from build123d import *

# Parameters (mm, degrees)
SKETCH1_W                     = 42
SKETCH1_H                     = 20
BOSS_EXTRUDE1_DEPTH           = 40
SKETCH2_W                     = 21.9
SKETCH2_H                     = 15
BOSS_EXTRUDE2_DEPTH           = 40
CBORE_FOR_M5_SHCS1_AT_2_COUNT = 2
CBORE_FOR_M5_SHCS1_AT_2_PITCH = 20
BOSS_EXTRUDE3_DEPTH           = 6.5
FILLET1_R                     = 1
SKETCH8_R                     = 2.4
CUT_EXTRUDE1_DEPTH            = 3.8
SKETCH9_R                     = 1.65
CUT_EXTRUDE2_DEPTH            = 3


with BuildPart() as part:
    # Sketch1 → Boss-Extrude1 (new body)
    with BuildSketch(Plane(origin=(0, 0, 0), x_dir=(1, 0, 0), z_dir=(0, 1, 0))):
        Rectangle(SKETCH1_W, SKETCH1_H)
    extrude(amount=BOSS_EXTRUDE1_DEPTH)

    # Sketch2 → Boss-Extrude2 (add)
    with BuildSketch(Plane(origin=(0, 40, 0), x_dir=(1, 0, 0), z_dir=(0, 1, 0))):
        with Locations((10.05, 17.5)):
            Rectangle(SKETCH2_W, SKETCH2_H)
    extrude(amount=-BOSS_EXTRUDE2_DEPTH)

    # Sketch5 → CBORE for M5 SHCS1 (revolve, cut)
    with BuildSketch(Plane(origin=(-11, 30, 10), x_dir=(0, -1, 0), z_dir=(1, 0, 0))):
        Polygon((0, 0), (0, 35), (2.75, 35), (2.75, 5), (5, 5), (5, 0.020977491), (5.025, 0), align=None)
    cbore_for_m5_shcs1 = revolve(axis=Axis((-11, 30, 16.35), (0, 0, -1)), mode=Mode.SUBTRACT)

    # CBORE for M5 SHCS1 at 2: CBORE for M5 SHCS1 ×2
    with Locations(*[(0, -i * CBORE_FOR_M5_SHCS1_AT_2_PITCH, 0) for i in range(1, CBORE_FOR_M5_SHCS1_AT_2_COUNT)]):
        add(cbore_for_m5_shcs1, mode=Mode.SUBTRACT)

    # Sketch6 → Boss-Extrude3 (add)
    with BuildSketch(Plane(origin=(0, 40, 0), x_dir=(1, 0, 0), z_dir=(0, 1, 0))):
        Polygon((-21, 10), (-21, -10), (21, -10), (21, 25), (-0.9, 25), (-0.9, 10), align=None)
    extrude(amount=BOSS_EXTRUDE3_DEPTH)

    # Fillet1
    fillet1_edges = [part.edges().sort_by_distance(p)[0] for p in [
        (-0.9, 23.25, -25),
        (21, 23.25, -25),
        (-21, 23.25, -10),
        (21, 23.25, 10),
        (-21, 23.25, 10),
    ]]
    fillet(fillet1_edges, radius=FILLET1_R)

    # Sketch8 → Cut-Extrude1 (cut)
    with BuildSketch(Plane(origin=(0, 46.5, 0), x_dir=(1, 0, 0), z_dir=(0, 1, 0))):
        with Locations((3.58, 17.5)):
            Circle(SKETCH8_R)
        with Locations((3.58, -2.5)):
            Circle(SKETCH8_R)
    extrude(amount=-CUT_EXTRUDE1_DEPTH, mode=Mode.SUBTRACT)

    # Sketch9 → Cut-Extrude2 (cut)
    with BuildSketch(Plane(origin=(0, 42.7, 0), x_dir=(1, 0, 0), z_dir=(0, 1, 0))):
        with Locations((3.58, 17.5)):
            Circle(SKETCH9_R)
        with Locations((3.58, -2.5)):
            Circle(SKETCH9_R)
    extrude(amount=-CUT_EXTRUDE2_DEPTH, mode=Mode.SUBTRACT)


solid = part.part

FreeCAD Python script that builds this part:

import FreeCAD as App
import Part
import Sketcher

V = App.Vector
Q = App.Units.Quantity


def edges_at(feature, points):
    """Names of the edges that pass closest to the given points."""
    edges = feature.Shape.Edges
    near = lambda p: min(range(len(edges)), key=lambda i: edges[i].distToShape(Part.Vertex(*p))[0])
    return sorted({f"Edge{near(p) + 1}" for p in points})


def add_polygon(sketch, points):
    """Adds a closed chain of lines whose ends are joined by coincident constraints."""
    first, n = sketch.GeometryCount, len(points)
    for a, b in zip(points, points[1:] + points[:1]):
        sketch.addGeometry(Part.LineSegment(App.Vector(*a, 0), App.Vector(*b, 0)), False)
    for i in range(n):
        sketch.addConstraint(Sketcher.Constraint("Coincident", first + i, 2, first + (i + 1) % n, 1))

doc = App.newDocument("Part")
params = doc.addObject("Spreadsheet::Sheet", "Params")
for row, (alias, value) in enumerate([
    ("sketch1_width", "42 mm"),
    ("sketch1_height", "20 mm"),
    ("pad1_length", "40 mm"),
    ("sketch2_height", "15 mm"),
    ("sketch2_width", "21.9 mm"),
    ("pad2_length", "40 mm"),
    ("sketch3_height", "35 mm"),
    ("sketch3_height2", "30 mm"),
    ("sketch3_width", "2.25 mm"),
    ("groove_angle", "360 deg"),
    ("linearpattern_pitch", "20 mm"),
    ("sketch4_width", "42 mm"),
    ("sketch4_height", "20 mm"),
    ("sketch4_height2", "35 mm"),
    ("sketch4_width2", "21.9 mm"),
    ("pad3_length", "6.5 mm"),
    ("fillet_radius", "1 mm"),
    ("sketch5_diameter", "4.8 mm"),
    ("pocket1_length", "3.8 mm"),
    ("sketch6_diameter", "3.3 mm"),
    ("pocket2_length", "3 mm"),
], start=1):
    params.set(f"A{row}", alias)
    params.set(f"B{row}", "=" + value)
    params.setAlias(f"B{row}", alias)

body = doc.addObject("PartDesign::Body", "Body")

# Sketch on XZ plane
sketch1 = body.newObject("Sketcher::SketchObject", "Sketch")
sketch1.AttachmentSupport = (doc.getObject("XZ_Plane"), [""])
sketch1.MapMode = "FlatFace"
add_polygon(sketch1, [(-21, -10), (-21, 10), (21, 10), (21, -10)])  # lines 0-3
sketch1.addConstraint([
    Sketcher.Constraint("Vertical", 0),
    Sketcher.Constraint("Horizontal", 1),
    Sketcher.Constraint("Vertical", 2),
    Sketcher.Constraint("Horizontal", 3),
    Sketcher.Constraint("Symmetric", 0, 2, 2, 2, -1, 1),
    Sketcher.Constraint("DistanceX", 1, 1, 1, 2, Q("42 mm")),
    Sketcher.Constraint("DistanceY", 0, 1, 0, 2, Q("20 mm")),
])
sketch1.setExpression("Constraints[9]", "Params.sketch1_width")
sketch1.setExpression("Constraints[10]", "Params.sketch1_height")
pad1 = body.newObject("PartDesign::Pad", "Pad")
pad1.Profile = sketch1
pad1.setExpression("Length", "Params.pad1_length")
pad1.Reversed = True

# Sketch on XZ plane
sketch2 = body.newObject("Sketcher::SketchObject", "Sketch001")
sketch2.AttachmentSupport = (doc.getObject("XZ_Plane"), [""])
sketch2.MapMode = "FlatFace"
sketch2.AttachmentOffset = App.Placement(V(0, 0, -40), App.Rotation())
add_polygon(sketch2, [(-0.9, -25), (-0.9, -10), (21, -10), (21, -25)])  # lines 0-3
sketch2.addConstraint([
    Sketcher.Constraint("Vertical", 0),
    Sketcher.Constraint("Horizontal", 1),
    Sketcher.Constraint("Vertical", 2),
    Sketcher.Constraint("Horizontal", 3),
    Sketcher.Constraint("DistanceY", 0, 1, 0, 2, Q("15 mm")),
    Sketcher.Constraint("DistanceX", 1, 1, 1, 2, Q("21.9 mm")),
    Sketcher.Constraint("DistanceY", 0, 2, -1, 1, Q("10 mm")),
    Sketcher.Constraint("DistanceX", -1, 1, 1, 2, Q("21 mm")),
])
sketch2.setExpression("Constraints[8]", "Params.sketch2_height")
sketch2.setExpression("Constraints[9]", "Params.sketch2_width")
pad2 = body.newObject("PartDesign::Pad", "Pad001")
pad2.Profile = sketch2
pad2.setExpression("Length", "Params.pad2_length")

# Sketch on YZ plane
sketch3 = body.newObject("Sketcher::SketchObject", "Sketch002")
sketch3.AttachmentSupport = (doc.getObject("YZ_Plane"), [""])
sketch3.MapMode = "FlatFace"
sketch3.AttachmentOffset = App.Placement(V(0, 0, -11), App.Rotation())
add_polygon(sketch3, [(30, -25), (30, 10), (24.975, 10), (25, 9.979023), (25, 5), (27.25, 5), (27.25, -25)])  # lines 0-6
sketch3.addGeometry(Part.LineSegment(V(30, 10, 0), V(30, -25, 0)), True)  # axis
sketch3.addConstraint([
    Sketcher.Constraint("Vertical", 0),
    Sketcher.Constraint("Horizontal", 1),
    Sketcher.Constraint("Vertical", 3),
    Sketcher.Constraint("Horizontal", 4),
    Sketcher.Constraint("Vertical", 5),
    Sketcher.Constraint("Horizontal", 6),
    Sketcher.Constraint("Vertical", 7),
    Sketcher.Constraint("Coincident", 7, 1, 0, 2),
    Sketcher.Constraint("Horizontal", 5, 2, 7, 2),
    Sketcher.Constraint("DistanceY", 0, 1, 0, 2, Q("35 mm")),
    Sketcher.Constraint("DistanceY", 5, 2, 5, 1, Q("30 mm")),
    Sketcher.Constraint("Angle", 2, Q("-40 deg")),
    Sketcher.Constraint("DistanceX", -1, 1, 0, 2, Q("30 mm")),
    Sketcher.Constraint("DistanceY", -1, 1, 0, 2, Q("10 mm")),
    Sketcher.Constraint("DistanceX", -1, 1, 2, 2, Q("25 mm")),
    Sketcher.Constraint("DistanceX", 4, 1, 4, 2, Q("2.25 mm")),
    Sketcher.Constraint("DistanceX", 1, 2, 1, 1, Q("5.025 mm")),
])
sketch3.setExpression("Constraints[16]", "Params.sketch3_height")
sketch3.setExpression("Constraints[17]", "Params.sketch3_height2")
sketch3.setExpression("Constraints[22]", "Params.sketch3_width")
groove = body.newObject("PartDesign::Groove", "Groove")
groove.Profile = sketch3
groove.ReferenceAxis = (sketch3, ["Axis0"])
groove.setExpression("Angle", "Params.groove_angle")
doc.recompute()

linearpattern = body.newObject("PartDesign::LinearPattern", "LinearPattern")
linearpattern.Originals = [groove]
linearpattern.Direction = (doc.getObject("Y_Axis"), [""])
linearpattern.Mode = "offset"
linearpattern.setExpression("Offset", "Params.linearpattern_pitch")
linearpattern.Occurrences = 2
linearpattern.Reversed = True
body.Tip = linearpattern

# Sketch on XZ plane
sketch4 = body.newObject("Sketcher::SketchObject", "Sketch003")
sketch4.AttachmentSupport = (doc.getObject("XZ_Plane"), [""])
sketch4.MapMode = "FlatFace"
sketch4.AttachmentOffset = App.Placement(V(0, 0, -40), App.Rotation())
add_polygon(sketch4, [(-21, -10), (-21, 10), (21, 10), (21, -25), (-0.9, -25), (-0.9, -10)])  # lines 0-5
sketch4.addConstraint([
    Sketcher.Constraint("Vertical", 0),
    Sketcher.Constraint("Horizontal", 1),
    Sketcher.Constraint("Vertical", 2),
    Sketcher.Constraint("Horizontal", 3),
    Sketcher.Constraint("Vertical", 4),
    Sketcher.Constraint("Horizontal", 5),
    Sketcher.Constraint("Symmetric", 1, 2, 5, 2, -1, 1),
    Sketcher.Constraint("DistanceX", 1, 1, 1, 2, Q("42 mm")),
    Sketcher.Constraint("DistanceY", 0, 1, 0, 2, Q("20 mm")),
    Sketcher.Constraint("DistanceY", 2, 2, 2, 1, Q("35 mm")),
    Sketcher.Constraint("DistanceX", 3, 2, 3, 1, Q("21.9 mm")),
])
sketch4.setExpression("Constraints[13]", "Params.sketch4_width")
sketch4.setExpression("Constraints[14]", "Params.sketch4_height")
sketch4.setExpression("Constraints[15]", "Params.sketch4_height2")
sketch4.setExpression("Constraints[16]", "Params.sketch4_width2")
pad3 = body.newObject("PartDesign::Pad", "Pad002")
pad3.Profile = sketch4
pad3.setExpression("Length", "Params.pad3_length")
pad3.Reversed = True
doc.recompute()

fillet = body.newObject("PartDesign::Fillet", "Fillet")
fillet.Base = (pad3, edges_at(pad3, [
    (-0.9, 23.25, -25),
    (21, 23.25, -25),
    (-21, 23.25, -10),
    (21, 23.25, 10),
    (-21, 23.25, 10),
]))
fillet.setExpression("Radius", "Params.fillet_radius")

# Sketch on XZ plane
sketch5 = body.newObject("Sketcher::SketchObject", "Sketch004")
sketch5.AttachmentSupport = (doc.getObject("XZ_Plane"), [""])
sketch5.MapMode = "FlatFace"
sketch5.AttachmentOffset = App.Placement(V(0, 0, -46.5), App.Rotation())
sketch5.addGeometry([
    Part.Circle(V(3.58, -17.5, 0), V(0, 0, 1), 2.4),
    Part.Circle(V(3.58, 2.5, 0), V(0, 0, 1), 2.4),
], False)
sketch5.addConstraint([
    Sketcher.Constraint("Equal", 0, 1),
    Sketcher.Constraint("Vertical", 0, 3, 1, 3),
    Sketcher.Constraint("Diameter", 0, Q("4.8 mm")),
    Sketcher.Constraint("DistanceY", 0, 3, 1, 3, Q("20 mm")),
    Sketcher.Constraint("DistanceY", 0, 3, -1, 1, Q("17.5 mm")),
    Sketcher.Constraint("DistanceX", -1, 1, 0, 3, Q("3.58 mm")),
])
sketch5.setExpression("Constraints[2]", "Params.sketch5_diameter")
pocket1 = body.newObject("PartDesign::Pocket", "Pocket")
pocket1.Profile = sketch5
pocket1.setExpression("Length", "Params.pocket1_length")
pocket1.Reversed = True

# Sketch on XZ plane
sketch6 = body.newObject("Sketcher::SketchObject", "Sketch005")
sketch6.AttachmentSupport = (doc.getObject("XZ_Plane"), [""])
sketch6.MapMode = "FlatFace"
sketch6.AttachmentOffset = App.Placement(V(0, 0, -42.7), App.Rotation())
sketch6.addGeometry([
    Part.Circle(V(3.58, -17.5, 0), V(0, 0, 1), 1.65),
    Part.Circle(V(3.58, 2.5, 0), V(0, 0, 1), 1.65),
], False)
sketch6.addConstraint([
    Sketcher.Constraint("Equal", 0, 1),
    Sketcher.Constraint("Vertical", 0, 3, 1, 3),
    Sketcher.Constraint("Diameter", 0, Q("3.3 mm")),
    Sketcher.Constraint("DistanceY", 0, 3, 1, 3, Q("20 mm")),
    Sketcher.Constraint("DistanceY", 0, 3, -1, 1, Q("17.5 mm")),
    Sketcher.Constraint("DistanceX", -1, 1, 0, 3, Q("3.58 mm")),
])
sketch6.setExpression("Constraints[2]", "Params.sketch6_diameter")
pocket2 = body.newObject("PartDesign::Pocket", "Pocket001")
pocket2.Profile = sketch6
pocket2.setExpression("Length", "Params.pocket2_length")
pocket2.Reversed = True

doc.recompute()
